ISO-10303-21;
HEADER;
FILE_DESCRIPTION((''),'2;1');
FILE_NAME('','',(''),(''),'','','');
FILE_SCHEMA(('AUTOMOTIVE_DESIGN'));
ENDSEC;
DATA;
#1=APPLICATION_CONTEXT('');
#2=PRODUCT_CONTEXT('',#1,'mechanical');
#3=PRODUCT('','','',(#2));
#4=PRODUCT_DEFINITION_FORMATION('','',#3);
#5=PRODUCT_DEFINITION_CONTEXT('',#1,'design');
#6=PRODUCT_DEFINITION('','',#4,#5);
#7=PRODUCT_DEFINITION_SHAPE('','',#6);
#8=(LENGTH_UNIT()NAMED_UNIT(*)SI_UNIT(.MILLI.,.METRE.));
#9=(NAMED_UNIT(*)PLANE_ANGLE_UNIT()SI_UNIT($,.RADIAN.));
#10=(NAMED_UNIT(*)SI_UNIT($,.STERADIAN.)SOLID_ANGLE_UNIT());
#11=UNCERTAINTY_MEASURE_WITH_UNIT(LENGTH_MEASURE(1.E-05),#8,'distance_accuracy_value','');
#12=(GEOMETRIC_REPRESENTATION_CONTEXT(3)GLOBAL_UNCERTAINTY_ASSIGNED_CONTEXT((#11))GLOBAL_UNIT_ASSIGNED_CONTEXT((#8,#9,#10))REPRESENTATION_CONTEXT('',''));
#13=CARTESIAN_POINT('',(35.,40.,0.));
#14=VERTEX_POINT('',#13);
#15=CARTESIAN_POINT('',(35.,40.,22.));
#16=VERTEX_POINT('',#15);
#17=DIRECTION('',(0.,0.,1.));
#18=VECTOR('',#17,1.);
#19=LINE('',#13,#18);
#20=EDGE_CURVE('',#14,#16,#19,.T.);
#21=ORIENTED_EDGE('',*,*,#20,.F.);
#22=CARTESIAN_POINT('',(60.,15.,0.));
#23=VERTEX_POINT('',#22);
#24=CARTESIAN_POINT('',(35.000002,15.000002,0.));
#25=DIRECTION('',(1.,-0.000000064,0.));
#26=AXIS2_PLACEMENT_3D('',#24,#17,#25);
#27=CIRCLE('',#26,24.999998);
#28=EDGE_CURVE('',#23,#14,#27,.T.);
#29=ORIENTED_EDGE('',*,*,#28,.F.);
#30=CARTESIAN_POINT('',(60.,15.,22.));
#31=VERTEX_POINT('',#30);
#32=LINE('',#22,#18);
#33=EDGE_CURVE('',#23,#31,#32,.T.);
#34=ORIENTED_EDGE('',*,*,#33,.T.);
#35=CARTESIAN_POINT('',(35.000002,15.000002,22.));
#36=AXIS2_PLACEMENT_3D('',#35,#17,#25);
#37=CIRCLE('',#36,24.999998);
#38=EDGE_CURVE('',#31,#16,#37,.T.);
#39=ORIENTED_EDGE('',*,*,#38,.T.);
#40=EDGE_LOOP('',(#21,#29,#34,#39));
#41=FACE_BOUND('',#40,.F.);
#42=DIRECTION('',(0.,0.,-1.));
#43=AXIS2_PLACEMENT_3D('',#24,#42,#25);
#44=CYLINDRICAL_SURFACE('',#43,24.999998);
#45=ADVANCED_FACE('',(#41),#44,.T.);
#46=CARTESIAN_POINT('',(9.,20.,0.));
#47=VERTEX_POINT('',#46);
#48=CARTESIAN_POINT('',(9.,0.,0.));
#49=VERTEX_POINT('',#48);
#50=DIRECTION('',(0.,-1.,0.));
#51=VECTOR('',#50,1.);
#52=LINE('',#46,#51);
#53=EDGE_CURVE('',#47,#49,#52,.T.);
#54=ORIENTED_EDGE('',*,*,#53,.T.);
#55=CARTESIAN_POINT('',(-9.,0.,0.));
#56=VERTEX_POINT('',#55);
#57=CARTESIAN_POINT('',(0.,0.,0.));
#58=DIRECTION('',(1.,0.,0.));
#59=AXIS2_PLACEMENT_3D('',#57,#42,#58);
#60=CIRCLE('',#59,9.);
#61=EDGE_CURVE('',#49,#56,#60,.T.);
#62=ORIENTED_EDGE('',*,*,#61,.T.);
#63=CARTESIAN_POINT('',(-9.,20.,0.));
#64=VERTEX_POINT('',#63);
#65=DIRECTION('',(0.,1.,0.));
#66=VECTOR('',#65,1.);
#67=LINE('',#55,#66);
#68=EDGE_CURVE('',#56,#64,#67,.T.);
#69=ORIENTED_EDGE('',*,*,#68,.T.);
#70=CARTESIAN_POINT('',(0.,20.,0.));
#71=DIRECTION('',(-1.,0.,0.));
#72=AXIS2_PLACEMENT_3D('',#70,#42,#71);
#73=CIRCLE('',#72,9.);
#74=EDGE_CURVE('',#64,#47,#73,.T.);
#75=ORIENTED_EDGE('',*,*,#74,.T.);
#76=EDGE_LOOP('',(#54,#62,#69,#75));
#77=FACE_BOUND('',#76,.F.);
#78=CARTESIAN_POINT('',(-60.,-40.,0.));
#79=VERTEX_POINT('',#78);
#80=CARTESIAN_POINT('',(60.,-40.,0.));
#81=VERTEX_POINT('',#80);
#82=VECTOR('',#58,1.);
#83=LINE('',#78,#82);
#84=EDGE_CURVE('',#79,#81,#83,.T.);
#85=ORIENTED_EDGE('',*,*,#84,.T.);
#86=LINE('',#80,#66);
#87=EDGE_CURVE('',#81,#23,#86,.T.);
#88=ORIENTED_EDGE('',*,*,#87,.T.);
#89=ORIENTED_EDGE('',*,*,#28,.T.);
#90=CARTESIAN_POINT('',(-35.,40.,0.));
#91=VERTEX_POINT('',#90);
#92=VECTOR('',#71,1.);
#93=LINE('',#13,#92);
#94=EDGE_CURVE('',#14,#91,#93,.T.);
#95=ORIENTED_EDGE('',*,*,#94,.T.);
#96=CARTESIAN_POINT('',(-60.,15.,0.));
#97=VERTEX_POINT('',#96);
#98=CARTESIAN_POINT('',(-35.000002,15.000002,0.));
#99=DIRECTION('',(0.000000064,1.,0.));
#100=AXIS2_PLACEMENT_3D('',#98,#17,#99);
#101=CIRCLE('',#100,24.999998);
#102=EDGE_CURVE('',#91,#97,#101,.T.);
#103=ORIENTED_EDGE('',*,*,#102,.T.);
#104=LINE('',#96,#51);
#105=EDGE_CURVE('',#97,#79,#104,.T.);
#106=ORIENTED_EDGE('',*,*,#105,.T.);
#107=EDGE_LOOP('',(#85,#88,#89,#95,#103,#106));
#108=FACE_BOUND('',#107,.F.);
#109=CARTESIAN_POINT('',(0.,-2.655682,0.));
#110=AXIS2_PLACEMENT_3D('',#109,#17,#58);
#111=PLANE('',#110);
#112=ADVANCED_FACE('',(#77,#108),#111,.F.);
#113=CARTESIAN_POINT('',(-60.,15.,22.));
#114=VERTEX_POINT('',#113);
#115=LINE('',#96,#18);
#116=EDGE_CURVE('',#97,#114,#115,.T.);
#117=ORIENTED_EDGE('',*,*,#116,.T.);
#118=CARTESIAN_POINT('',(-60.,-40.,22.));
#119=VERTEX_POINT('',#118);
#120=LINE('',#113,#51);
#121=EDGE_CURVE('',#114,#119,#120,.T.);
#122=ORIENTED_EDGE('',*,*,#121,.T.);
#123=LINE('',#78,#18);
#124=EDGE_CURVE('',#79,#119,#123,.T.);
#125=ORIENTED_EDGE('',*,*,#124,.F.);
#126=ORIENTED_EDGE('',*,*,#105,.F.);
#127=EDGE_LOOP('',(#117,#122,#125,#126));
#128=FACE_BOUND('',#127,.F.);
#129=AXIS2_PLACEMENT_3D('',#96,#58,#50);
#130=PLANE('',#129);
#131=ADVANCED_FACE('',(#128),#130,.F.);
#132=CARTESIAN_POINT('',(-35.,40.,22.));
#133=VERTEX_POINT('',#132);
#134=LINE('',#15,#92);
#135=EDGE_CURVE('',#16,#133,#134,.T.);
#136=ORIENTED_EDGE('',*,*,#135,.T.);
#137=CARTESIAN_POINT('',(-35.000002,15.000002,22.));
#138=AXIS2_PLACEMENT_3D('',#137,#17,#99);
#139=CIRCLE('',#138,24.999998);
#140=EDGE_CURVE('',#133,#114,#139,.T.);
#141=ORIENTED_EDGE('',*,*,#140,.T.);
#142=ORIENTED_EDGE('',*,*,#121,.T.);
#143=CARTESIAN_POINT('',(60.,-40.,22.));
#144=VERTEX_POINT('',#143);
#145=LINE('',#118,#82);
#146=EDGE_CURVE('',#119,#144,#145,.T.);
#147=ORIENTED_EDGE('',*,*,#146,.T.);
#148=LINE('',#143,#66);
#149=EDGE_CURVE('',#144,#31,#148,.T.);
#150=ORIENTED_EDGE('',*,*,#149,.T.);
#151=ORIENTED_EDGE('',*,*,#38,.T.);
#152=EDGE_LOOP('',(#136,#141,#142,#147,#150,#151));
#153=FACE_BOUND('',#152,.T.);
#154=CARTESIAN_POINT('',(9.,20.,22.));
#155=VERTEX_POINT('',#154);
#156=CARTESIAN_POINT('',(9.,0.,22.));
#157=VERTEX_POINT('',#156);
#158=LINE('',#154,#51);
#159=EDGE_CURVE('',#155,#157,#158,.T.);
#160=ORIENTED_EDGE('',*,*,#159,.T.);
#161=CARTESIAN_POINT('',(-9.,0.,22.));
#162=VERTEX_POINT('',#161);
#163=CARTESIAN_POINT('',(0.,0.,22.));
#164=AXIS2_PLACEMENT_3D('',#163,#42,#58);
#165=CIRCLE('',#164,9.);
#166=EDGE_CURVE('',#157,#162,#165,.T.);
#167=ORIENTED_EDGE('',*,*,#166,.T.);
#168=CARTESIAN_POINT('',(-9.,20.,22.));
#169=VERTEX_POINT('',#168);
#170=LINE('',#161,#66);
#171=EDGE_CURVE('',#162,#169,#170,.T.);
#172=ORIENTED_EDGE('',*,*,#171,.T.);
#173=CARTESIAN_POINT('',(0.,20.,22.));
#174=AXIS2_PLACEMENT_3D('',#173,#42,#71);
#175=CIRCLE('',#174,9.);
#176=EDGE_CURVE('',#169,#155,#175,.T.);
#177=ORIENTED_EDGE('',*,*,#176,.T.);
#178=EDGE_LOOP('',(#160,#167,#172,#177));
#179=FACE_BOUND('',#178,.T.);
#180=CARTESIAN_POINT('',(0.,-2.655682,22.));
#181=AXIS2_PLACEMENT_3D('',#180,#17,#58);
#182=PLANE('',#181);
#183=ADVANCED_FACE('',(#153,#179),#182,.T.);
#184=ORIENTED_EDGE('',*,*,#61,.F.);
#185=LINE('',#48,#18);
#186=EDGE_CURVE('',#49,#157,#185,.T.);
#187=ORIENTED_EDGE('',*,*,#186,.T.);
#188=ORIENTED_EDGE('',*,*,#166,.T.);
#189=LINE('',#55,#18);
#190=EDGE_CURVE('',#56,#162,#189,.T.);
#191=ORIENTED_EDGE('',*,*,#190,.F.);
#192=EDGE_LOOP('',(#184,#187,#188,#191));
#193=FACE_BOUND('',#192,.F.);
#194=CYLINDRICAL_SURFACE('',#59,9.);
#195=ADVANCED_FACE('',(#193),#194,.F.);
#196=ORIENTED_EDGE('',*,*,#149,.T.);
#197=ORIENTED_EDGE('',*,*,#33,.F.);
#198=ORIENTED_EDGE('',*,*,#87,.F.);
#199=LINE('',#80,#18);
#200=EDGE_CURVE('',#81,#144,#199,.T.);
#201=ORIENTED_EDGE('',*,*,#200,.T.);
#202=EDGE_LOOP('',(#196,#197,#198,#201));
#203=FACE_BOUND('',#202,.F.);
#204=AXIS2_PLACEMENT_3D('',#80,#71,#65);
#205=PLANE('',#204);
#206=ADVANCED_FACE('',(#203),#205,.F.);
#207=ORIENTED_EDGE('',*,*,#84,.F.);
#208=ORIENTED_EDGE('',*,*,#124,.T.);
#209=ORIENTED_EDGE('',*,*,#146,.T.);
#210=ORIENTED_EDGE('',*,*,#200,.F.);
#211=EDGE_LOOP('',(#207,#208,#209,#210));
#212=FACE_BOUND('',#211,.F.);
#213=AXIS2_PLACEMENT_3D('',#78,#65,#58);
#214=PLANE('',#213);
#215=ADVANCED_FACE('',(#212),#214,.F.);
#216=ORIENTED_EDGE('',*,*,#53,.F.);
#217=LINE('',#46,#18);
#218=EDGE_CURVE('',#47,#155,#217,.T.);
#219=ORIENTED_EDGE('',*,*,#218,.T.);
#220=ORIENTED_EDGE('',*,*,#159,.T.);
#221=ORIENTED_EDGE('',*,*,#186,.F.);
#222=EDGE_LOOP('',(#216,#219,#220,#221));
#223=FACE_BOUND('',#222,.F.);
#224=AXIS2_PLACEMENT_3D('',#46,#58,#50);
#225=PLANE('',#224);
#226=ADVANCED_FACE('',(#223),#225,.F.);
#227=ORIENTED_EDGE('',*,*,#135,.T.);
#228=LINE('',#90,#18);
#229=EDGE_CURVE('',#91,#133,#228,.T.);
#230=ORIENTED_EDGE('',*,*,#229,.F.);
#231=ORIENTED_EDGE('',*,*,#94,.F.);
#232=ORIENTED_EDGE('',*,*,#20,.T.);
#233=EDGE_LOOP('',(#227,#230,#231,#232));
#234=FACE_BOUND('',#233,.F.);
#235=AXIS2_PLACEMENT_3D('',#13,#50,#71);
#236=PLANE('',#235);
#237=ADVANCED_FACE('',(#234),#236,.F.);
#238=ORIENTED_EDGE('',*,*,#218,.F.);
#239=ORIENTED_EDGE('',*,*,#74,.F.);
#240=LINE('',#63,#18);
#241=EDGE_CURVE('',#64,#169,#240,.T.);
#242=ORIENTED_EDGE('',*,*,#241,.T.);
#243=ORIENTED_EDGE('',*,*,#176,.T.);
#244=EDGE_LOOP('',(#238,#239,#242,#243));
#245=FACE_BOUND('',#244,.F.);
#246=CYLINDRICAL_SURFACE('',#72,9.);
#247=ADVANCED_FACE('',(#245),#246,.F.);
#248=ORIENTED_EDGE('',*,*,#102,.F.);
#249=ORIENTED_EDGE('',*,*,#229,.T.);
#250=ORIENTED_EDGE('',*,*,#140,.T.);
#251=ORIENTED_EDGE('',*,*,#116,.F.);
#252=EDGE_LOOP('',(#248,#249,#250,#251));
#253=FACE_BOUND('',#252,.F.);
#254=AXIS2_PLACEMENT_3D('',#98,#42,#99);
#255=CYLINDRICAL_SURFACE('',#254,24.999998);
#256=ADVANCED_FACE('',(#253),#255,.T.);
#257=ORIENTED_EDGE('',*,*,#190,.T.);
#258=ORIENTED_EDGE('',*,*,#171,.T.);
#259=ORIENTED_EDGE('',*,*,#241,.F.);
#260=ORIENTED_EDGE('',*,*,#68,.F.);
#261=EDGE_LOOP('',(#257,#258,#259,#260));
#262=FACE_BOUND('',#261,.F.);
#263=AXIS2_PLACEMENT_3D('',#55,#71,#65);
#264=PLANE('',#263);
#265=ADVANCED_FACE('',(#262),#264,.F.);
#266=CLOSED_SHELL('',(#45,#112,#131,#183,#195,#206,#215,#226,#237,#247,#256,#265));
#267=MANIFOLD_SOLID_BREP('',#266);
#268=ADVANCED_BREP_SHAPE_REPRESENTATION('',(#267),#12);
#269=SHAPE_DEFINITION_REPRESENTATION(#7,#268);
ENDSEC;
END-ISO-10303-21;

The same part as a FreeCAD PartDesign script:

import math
import FreeCAD as App
import Part
import Sketcher
from FreeCAD import Vector
Q = App.Units.Quantity

doc = App.newDocument("Part")
body = doc.addObject("PartDesign::Body", "Body")

# Sketch on XY plane
sketch1 = doc.addObject("Sketcher::SketchObject", "Sketch")
body.addObject(sketch1)
sketch1.AttachmentSupport = (doc.XY_Plane, [""])
sketch1.MapMode = "FlatFace"
sketch1.addGeometry([
    Part.ArcOfCircle(Part.Circle(Vector(35, 15, 0), Vector(0, 0, 1), 25), math.radians(0), math.radians(90)),  # 0
    Part.LineSegment(Vector(35, 40, 0), Vector(-35, 40, 0)),  # 1
    Part.ArcOfCircle(Part.Circle(Vector(-35, 15, 0), Vector(0, 0, 1), 25), math.radians(90), math.radians(180)),  # 2
    Part.LineSegment(Vector(-60, 15, 0), Vector(-60, -40, 0)),  # 3
    Part.LineSegment(Vector(-60, -40, 0), Vector(60, -40, 0)),  # 4
    Part.LineSegment(Vector(60, -40, 0), Vector(60, 15, 0)),  # 5
    Part.LineSegment(Vector(-9, 0, 0), Vector(-9, 20, 0)),  # 6
    Part.ArcOfCircle(Part.Circle(Vector(0, 20, 0), Vector(0, 0, 1), 9), math.radians(0), math.radians(180)),  # 7
    Part.LineSegment(Vector(9, 20, 0), Vector(9, 0, 0)),  # 8
    Part.ArcOfCircle(Part.Circle(Vector(0, 0, 0), Vector(0, 0, 1), 9), math.radians(180), math.radians(360)),  # 9
], False)
sketch1.addConstraint([
    Sketcher.Constraint("Tangent", 0, 2, 1, 1),
    Sketcher.Constraint("Tangent", 1, 2, 2, 1),
    Sketcher.Constraint("Tangent", 2, 2, 3, 1),
    Sketcher.Constraint("Coincident", 3, 2, 4, 1),
    Sketcher.Constraint("Coincident", 4, 2, 5, 1),
    Sketcher.Constraint("Tangent", 5, 2, 0, 1),
    Sketcher.Constraint("Tangent", 6, 2, 7, 2),
    Sketcher.Constraint("Tangent", 7, 1, 8, 1),
    Sketcher.Constraint("Tangent", 8, 2, 9, 2),
    Sketcher.Constraint("Tangent", 9, 1, 6, 1),
    Sketcher.Constraint("Horizontal", 1),
    Sketcher.Constraint("Vertical", 3),
    Sketcher.Constraint("Horizontal", 4),
    Sketcher.Constraint("Vertical", 5),
    Sketcher.Constraint("Vertical", 6),
    Sketcher.Constraint("Vertical", 8),
    Sketcher.Constraint("Coincident", 9, 3, -1, 1),
    Sketcher.Constraint("Equal", 0, 2),
    Sketcher.Constraint("Radius", 0, Q("24.999998 mm")),
    Sketcher.Constraint("Radius", 7, Q("9 mm")),
    Sketcher.Constraint("DistanceX", 1, 2, 1, 1, Q("70 mm")),
    Sketcher.Constraint("DistanceY", 3, 2, 3, 1, Q("55 mm")),
    Sketcher.Constraint("DistanceY", 6, 1, 6, 2, Q("20 mm")),
    Sketcher.Constraint("DistanceX", -1, 1, 0, 3, Q("35.000002 mm")),
    Sketcher.Constraint("DistanceY", -1, 1, 0, 3, Q("15.000002 mm")),
])
pad1 = doc.addObject("PartDesign::Pad", "Pad")
body.addObject(pad1)
pad1.Profile = sketch1
pad1.Length = 22

doc.recompute()
